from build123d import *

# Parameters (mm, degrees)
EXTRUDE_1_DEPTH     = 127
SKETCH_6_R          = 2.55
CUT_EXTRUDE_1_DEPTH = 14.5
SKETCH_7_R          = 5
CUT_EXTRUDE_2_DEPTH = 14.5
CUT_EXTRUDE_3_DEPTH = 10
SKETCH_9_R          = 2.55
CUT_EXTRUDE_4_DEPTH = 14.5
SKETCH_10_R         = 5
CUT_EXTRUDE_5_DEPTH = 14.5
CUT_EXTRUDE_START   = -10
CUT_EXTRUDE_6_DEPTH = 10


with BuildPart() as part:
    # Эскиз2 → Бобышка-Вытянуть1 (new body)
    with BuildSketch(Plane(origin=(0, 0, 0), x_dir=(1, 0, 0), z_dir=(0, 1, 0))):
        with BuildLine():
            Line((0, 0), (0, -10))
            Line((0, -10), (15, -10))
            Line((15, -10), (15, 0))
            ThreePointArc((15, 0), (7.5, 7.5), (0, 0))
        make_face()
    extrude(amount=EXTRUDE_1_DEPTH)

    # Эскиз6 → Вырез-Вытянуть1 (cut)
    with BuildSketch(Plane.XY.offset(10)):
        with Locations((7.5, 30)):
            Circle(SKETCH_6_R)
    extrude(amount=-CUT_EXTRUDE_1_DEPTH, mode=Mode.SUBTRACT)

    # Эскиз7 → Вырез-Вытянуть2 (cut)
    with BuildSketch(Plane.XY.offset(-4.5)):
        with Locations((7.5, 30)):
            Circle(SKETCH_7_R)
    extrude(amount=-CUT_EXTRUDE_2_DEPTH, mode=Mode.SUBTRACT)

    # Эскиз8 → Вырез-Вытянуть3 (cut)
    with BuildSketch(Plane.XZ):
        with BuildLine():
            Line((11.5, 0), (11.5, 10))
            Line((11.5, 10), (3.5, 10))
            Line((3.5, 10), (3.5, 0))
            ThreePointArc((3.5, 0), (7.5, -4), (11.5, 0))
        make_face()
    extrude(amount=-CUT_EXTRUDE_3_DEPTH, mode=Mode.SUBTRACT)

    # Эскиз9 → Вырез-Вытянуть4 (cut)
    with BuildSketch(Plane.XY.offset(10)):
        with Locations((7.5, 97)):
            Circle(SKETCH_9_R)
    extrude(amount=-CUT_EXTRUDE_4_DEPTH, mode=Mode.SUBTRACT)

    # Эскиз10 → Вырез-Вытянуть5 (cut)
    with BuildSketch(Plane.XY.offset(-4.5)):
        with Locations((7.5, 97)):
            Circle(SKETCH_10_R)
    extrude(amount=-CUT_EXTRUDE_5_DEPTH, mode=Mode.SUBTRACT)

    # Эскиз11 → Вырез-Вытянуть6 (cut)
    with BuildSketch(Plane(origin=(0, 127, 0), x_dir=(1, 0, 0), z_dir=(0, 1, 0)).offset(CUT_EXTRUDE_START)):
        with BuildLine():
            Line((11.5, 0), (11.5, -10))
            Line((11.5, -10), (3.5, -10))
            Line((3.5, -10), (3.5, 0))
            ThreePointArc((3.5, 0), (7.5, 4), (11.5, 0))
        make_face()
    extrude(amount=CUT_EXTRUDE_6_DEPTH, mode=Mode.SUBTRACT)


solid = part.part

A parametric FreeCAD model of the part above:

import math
import FreeCAD as App
import Part
import Sketcher

V = App.Vector
Q = App.Units.Quantity

doc = App.newDocument("Part")
params = doc.addObject("Spreadsheet::Sheet", "Params")
for row, (alias, value) in enumerate([
    ("sketch1_radius", "7.5 mm"),
    ("sketch1_height", "10 mm"),
    ("pad1_length", "127 mm"),
    ("sketch2_diameter", "5.1 mm"),
    ("pocket1_length", "14.5 mm"),
    ("sketch3_diameter", "10 mm"),
    ("pocket2_length", "14.5 mm"),
    ("sketch4_radius", "4 mm"),
    ("sketch4_height", "10 mm"),
    ("pocket3_length", "10 mm"),
    ("sketch5_diameter", "5.1 mm"),
    ("pocket4_length", "14.5 mm"),
    ("sketch6_diameter", "10 mm"),
    ("pocket5_length", "14.5 mm"),
    ("sketch7_radius", "4 mm"),
    ("sketch7_height", "10 mm"),
    ("pocket6_length", "10 mm"),
], start=1):
    params.set(f"A{row}", alias)
    params.set(f"B{row}", "=" + value)
    params.setAlias(f"B{row}", alias)

body = doc.addObject("PartDesign::Body", "Body")

# Sketch on XZ plane
sketch1 = body.newObject("Sketcher::SketchObject", "Sketch")
sketch1.AttachmentSupport = (doc.getObject("XZ_Plane"), [""])
sketch1.MapMode = "FlatFace"
sketch1.addGeometry([
    Part.LineSegment(V(0, 0, 0), V(0, 10, 0)),
    Part.LineSegment(V(0, 10, 0), V(15, 10, 0)),
    Part.LineSegment(V(15, 10, 0), V(15, 0, 0)),
    Part.ArcOfCircle(Part.Circle(V(8, 0, 0), V(0, 0, 1), 8), math.radians(180), math.radians(360)),
], False)
sketch1.addConstraint([
    Sketcher.Constraint("Coincident", 0, 2, 1, 1),
    Sketcher.Constraint("Coincident", 1, 2, 2, 1),
    Sketcher.Constraint("Tangent", 2, 2, 3, 2),
    Sketcher.Constraint("Tangent", 3, 1, 0, 1),
    Sketcher.Constraint("Vertical", 0),
    Sketcher.Constraint("Horizontal", 1),
    Sketcher.Constraint("Vertical", 2),
    Sketcher.Constraint("Coincident", 3, 1, -1, 1),
    Sketcher.Constraint("Radius", 3, Q("7.5 mm")),
    Sketcher.Constraint("DistanceY", 0, 1, 0, 2, Q("10 mm")),
])
sketch1.setExpression("Constraints[8]", "Params.sketch1_radius")
sketch1.setExpression("Constraints[9]", "Params.sketch1_height")
pad1 = body.newObject("PartDesign::Pad", "Pad")
pad1.Profile = sketch1
pad1.setExpression("Length", "Params.pad1_length")
pad1.Reversed = True

# Sketch on XY plane
sketch2 = body.newObject("Sketcher::SketchObject", "Sketch001")
sketch2.AttachmentSupport = (doc.getObject("XY_Plane"), [""])
sketch2.MapMode = "FlatFace"
sketch2.AttachmentOffset = App.Placement(V(0, 0, 10), App.Rotation())
sketch2.addGeometry(Part.Circle(V(7.5, 30, 0), V(0, 0, 1), 2.5), False)
sketch2.addConstraint([
    Sketcher.Constraint("Diameter", 0, Q("5.1 mm")),
    Sketcher.Constraint("DistanceY", -1, 1, 0, 3, Q("30 mm")),
    Sketcher.Constraint("DistanceX", -1, 1, 0, 3, Q("7.5 mm")),
])
sketch2.setExpression("Constraints[0]", "Params.sketch2_diameter")
pocket1 = body.newObject("PartDesign::Pocket", "Pocket")
pocket1.Profile = sketch2
pocket1.setExpression("Length", "Params.pocket1_length")

# Sketch on XY plane
sketch3 = body.newObject("Sketcher::SketchObject", "Sketch002")
sketch3.AttachmentSupport = (doc.getObject("XY_Plane"), [""])
sketch3.MapMode = "FlatFace"
sketch3.AttachmentOffset = App.Placement(V(0, 0, -4.5), App.Rotation())
sketch3.addGeometry(Part.Circle(V(8, 30, 0), V(0, 0, 1), 5), False)
sketch3.addConstraint([
    Sketcher.Constraint("Diameter", 0, Q("10 mm")),
    Sketcher.Constraint("DistanceY", -1, 1, 0, 3, Q("30 mm")),
    Sketcher.Constraint("DistanceX", -1, 1, 0, 3, Q("7.5 mm")),
])
sketch3.setExpression("Constraints[0]", "Params.sketch3_diameter")
pocket2 = body.newObject("PartDesign::Pocket", "Pocket001")
pocket2.Profile = sketch3
pocket2.setExpression("Length", "Params.pocket2_length")

# Sketch on XZ plane
sketch4 = body.newObject("Sketcher::SketchObject", "Sketch003")
sketch4.AttachmentSupport = (doc.getObject("XZ_Plane"), [""])
sketch4.MapMode = "FlatFace"
sketch4.addGeometry([
    Part.LineSegment(V(11.5, 0, 0), V(11.5, 10, 0)),
    Part.LineSegment(V(11.5, 10, 0), V(3.5, 10, 0)),
    Part.LineSegment(V(3.5, 10, 0), V(3.5, 0, 0)),
    Part.ArcOfCircle(Part.Circle(V(7.5, 0, 0), V(0, 0, 1), 4), math.radians(180), math.radians(360)),
], False)
sketch4.addConstraint([
    Sketcher.Constraint("Coincident", 0, 2, 1, 1),
    Sketcher.Constraint("Coincident", 1, 2, 2, 1),
    Sketcher.Constraint("Tangent", 2, 2, 3, 1),
    Sketcher.Constraint("Tangent", 3, 2, 0, 1),
    Sketcher.Constraint("Vertical", 0),
    Sketcher.Constraint("Horizontal", 1),
    Sketcher.Constraint("Vertical", 2),
    Sketcher.Constraint("PointOnObject", 3, 3, -1),
    Sketcher.Constraint("Radius", 3, Q("4 mm")),
    Sketcher.Constraint("DistanceY", 0, 1, 0, 2, Q("10 mm")),
    Sketcher.Constraint("DistanceX", -1, 1, 3, 3, Q("7.5 mm")),
])
sketch4.setExpression("Constraints[8]", "Params.sketch4_radius")
sketch4.setExpression("Constraints[9]", "Params.sketch4_height")
pocket3 = body.newObject("PartDesign::Pocket", "Pocket002")
pocket3.Profile = sketch4
pocket3.setExpression("Length", "Params.pocket3_length")

# Sketch on XY plane
sketch5 = body.newObject("Sketcher::SketchObject", "Sketch004")
sketch5.AttachmentSupport = (doc.getObject("XY_Plane"), [""])
sketch5.MapMode = "FlatFace"
sketch5.AttachmentOffset = App.Placement(V(0, 0, 10), App.Rotation())
sketch5.addGeometry(Part.Circle(V(7.5, 97, 0), V(0, 0, 1), 2.5), False)
sketch5.addConstraint([
    Sketcher.Constraint("Diameter", 0, Q("5.1 mm")),
    Sketcher.Constraint("DistanceY", -1, 1, 0, 3, Q("97 mm")),
    Sketcher.Constraint("DistanceX", -1, 1, 0, 3, Q("7.5 mm")),
])
sketch5.setExpression("Constraints[0]", "Params.sketch5_diameter")
pocket4 = body.newObject("PartDesign::Pocket", "Pocket003")
pocket4.Profile = sketch5
pocket4.setExpression("Length", "Params.pocket4_length")

# Sketch on XY plane
sketch6 = body.newObject("Sketcher::SketchObject", "Sketch005")
sketch6.AttachmentSupport = (doc.getObject("XY_Plane"), [""])
sketch6.MapMode = "FlatFace"
sketch6.AttachmentOffset = App.Placement(V(0, 0, -4.5), App.Rotation())
sketch6.addGeometry(Part.Circle(V(8, 97, 0), V(0, 0, 1), 5), False)
sketch6.addConstraint([
    Sketcher.Constraint("Diameter", 0, Q("10 mm")),
    Sketcher.Constraint("DistanceY", -1, 1, 0, 3, Q("97 mm")),
    Sketcher.Constraint("DistanceX", -1, 1, 0, 3, Q("7.5 mm")),
])
sketch6.setExpression("Constraints[0]", "Params.sketch6_diameter")
pocket5 = body.newObject("PartDesign::Pocket", "Pocket004")
pocket5.Profile = sketch6
pocket5.setExpression("Length", "Params.pocket5_length")

# Sketch on XZ plane
sketch7 = body.newObject("Sketcher::SketchObject", "Sketch006")
sketch7.AttachmentSupport = (doc.getObject("XZ_Plane"), [""])
sketch7.MapMode = "FlatFace"
sketch7.AttachmentOffset = App.Placement(V(0, 0, -117), App.Rotation())
sketch7.addGeometry([
    Part.LineSegment(V(11.5, 10, 0), V(11.5, 0, 0)),
    Part.ArcOfCircle(Part.Circle(V(7.5, 0, 0), V(0, 0, 1), 4), math.radians(180), math.radians(360)),
    Part.LineSegment(V(3.5, 0, 0), V(3.5, 10, 0)),
    Part.LineSegment(V(3.5, 10, 0), V(11.5, 10, 0)),
], False)
sketch7.addConstraint([
    Sketcher.Constraint("Tangent", 0, 2, 1, 2),
    Sketcher.Constraint("Tangent", 1, 1, 2, 1),
    Sketcher.Constraint("Coincident", 2, 2, 3, 1),
    Sketcher.Constraint("Coincident", 3, 2, 0, 1),
    Sketcher.Constraint("Vertical", 0),
    Sketcher.Constraint("Vertical", 2),
    Sketcher.Constraint("Horizontal", 3),
    Sketcher.Constraint("PointOnObject", 1, 3, -1),
    Sketcher.Constraint("Radius", 1, Q("4 mm")),
    Sketcher.Constraint("DistanceY", 0, 2, 0, 1, Q("10 mm")),
    Sketcher.Constraint("DistanceX", -1, 1, 1, 3, Q("7.5 mm")),
])
sketch7.setExpression("Constraints[8]", "Params.sketch7_radius")
sketch7.setExpression("Constraints[9]", "Params.sketch7_height")
pocket6 = body.newObject("PartDesign::Pocket", "Pocket005")
pocket6.Profile = sketch7
pocket6.setExpression("Length", "Params.pocket6_length")

doc.recompute()
